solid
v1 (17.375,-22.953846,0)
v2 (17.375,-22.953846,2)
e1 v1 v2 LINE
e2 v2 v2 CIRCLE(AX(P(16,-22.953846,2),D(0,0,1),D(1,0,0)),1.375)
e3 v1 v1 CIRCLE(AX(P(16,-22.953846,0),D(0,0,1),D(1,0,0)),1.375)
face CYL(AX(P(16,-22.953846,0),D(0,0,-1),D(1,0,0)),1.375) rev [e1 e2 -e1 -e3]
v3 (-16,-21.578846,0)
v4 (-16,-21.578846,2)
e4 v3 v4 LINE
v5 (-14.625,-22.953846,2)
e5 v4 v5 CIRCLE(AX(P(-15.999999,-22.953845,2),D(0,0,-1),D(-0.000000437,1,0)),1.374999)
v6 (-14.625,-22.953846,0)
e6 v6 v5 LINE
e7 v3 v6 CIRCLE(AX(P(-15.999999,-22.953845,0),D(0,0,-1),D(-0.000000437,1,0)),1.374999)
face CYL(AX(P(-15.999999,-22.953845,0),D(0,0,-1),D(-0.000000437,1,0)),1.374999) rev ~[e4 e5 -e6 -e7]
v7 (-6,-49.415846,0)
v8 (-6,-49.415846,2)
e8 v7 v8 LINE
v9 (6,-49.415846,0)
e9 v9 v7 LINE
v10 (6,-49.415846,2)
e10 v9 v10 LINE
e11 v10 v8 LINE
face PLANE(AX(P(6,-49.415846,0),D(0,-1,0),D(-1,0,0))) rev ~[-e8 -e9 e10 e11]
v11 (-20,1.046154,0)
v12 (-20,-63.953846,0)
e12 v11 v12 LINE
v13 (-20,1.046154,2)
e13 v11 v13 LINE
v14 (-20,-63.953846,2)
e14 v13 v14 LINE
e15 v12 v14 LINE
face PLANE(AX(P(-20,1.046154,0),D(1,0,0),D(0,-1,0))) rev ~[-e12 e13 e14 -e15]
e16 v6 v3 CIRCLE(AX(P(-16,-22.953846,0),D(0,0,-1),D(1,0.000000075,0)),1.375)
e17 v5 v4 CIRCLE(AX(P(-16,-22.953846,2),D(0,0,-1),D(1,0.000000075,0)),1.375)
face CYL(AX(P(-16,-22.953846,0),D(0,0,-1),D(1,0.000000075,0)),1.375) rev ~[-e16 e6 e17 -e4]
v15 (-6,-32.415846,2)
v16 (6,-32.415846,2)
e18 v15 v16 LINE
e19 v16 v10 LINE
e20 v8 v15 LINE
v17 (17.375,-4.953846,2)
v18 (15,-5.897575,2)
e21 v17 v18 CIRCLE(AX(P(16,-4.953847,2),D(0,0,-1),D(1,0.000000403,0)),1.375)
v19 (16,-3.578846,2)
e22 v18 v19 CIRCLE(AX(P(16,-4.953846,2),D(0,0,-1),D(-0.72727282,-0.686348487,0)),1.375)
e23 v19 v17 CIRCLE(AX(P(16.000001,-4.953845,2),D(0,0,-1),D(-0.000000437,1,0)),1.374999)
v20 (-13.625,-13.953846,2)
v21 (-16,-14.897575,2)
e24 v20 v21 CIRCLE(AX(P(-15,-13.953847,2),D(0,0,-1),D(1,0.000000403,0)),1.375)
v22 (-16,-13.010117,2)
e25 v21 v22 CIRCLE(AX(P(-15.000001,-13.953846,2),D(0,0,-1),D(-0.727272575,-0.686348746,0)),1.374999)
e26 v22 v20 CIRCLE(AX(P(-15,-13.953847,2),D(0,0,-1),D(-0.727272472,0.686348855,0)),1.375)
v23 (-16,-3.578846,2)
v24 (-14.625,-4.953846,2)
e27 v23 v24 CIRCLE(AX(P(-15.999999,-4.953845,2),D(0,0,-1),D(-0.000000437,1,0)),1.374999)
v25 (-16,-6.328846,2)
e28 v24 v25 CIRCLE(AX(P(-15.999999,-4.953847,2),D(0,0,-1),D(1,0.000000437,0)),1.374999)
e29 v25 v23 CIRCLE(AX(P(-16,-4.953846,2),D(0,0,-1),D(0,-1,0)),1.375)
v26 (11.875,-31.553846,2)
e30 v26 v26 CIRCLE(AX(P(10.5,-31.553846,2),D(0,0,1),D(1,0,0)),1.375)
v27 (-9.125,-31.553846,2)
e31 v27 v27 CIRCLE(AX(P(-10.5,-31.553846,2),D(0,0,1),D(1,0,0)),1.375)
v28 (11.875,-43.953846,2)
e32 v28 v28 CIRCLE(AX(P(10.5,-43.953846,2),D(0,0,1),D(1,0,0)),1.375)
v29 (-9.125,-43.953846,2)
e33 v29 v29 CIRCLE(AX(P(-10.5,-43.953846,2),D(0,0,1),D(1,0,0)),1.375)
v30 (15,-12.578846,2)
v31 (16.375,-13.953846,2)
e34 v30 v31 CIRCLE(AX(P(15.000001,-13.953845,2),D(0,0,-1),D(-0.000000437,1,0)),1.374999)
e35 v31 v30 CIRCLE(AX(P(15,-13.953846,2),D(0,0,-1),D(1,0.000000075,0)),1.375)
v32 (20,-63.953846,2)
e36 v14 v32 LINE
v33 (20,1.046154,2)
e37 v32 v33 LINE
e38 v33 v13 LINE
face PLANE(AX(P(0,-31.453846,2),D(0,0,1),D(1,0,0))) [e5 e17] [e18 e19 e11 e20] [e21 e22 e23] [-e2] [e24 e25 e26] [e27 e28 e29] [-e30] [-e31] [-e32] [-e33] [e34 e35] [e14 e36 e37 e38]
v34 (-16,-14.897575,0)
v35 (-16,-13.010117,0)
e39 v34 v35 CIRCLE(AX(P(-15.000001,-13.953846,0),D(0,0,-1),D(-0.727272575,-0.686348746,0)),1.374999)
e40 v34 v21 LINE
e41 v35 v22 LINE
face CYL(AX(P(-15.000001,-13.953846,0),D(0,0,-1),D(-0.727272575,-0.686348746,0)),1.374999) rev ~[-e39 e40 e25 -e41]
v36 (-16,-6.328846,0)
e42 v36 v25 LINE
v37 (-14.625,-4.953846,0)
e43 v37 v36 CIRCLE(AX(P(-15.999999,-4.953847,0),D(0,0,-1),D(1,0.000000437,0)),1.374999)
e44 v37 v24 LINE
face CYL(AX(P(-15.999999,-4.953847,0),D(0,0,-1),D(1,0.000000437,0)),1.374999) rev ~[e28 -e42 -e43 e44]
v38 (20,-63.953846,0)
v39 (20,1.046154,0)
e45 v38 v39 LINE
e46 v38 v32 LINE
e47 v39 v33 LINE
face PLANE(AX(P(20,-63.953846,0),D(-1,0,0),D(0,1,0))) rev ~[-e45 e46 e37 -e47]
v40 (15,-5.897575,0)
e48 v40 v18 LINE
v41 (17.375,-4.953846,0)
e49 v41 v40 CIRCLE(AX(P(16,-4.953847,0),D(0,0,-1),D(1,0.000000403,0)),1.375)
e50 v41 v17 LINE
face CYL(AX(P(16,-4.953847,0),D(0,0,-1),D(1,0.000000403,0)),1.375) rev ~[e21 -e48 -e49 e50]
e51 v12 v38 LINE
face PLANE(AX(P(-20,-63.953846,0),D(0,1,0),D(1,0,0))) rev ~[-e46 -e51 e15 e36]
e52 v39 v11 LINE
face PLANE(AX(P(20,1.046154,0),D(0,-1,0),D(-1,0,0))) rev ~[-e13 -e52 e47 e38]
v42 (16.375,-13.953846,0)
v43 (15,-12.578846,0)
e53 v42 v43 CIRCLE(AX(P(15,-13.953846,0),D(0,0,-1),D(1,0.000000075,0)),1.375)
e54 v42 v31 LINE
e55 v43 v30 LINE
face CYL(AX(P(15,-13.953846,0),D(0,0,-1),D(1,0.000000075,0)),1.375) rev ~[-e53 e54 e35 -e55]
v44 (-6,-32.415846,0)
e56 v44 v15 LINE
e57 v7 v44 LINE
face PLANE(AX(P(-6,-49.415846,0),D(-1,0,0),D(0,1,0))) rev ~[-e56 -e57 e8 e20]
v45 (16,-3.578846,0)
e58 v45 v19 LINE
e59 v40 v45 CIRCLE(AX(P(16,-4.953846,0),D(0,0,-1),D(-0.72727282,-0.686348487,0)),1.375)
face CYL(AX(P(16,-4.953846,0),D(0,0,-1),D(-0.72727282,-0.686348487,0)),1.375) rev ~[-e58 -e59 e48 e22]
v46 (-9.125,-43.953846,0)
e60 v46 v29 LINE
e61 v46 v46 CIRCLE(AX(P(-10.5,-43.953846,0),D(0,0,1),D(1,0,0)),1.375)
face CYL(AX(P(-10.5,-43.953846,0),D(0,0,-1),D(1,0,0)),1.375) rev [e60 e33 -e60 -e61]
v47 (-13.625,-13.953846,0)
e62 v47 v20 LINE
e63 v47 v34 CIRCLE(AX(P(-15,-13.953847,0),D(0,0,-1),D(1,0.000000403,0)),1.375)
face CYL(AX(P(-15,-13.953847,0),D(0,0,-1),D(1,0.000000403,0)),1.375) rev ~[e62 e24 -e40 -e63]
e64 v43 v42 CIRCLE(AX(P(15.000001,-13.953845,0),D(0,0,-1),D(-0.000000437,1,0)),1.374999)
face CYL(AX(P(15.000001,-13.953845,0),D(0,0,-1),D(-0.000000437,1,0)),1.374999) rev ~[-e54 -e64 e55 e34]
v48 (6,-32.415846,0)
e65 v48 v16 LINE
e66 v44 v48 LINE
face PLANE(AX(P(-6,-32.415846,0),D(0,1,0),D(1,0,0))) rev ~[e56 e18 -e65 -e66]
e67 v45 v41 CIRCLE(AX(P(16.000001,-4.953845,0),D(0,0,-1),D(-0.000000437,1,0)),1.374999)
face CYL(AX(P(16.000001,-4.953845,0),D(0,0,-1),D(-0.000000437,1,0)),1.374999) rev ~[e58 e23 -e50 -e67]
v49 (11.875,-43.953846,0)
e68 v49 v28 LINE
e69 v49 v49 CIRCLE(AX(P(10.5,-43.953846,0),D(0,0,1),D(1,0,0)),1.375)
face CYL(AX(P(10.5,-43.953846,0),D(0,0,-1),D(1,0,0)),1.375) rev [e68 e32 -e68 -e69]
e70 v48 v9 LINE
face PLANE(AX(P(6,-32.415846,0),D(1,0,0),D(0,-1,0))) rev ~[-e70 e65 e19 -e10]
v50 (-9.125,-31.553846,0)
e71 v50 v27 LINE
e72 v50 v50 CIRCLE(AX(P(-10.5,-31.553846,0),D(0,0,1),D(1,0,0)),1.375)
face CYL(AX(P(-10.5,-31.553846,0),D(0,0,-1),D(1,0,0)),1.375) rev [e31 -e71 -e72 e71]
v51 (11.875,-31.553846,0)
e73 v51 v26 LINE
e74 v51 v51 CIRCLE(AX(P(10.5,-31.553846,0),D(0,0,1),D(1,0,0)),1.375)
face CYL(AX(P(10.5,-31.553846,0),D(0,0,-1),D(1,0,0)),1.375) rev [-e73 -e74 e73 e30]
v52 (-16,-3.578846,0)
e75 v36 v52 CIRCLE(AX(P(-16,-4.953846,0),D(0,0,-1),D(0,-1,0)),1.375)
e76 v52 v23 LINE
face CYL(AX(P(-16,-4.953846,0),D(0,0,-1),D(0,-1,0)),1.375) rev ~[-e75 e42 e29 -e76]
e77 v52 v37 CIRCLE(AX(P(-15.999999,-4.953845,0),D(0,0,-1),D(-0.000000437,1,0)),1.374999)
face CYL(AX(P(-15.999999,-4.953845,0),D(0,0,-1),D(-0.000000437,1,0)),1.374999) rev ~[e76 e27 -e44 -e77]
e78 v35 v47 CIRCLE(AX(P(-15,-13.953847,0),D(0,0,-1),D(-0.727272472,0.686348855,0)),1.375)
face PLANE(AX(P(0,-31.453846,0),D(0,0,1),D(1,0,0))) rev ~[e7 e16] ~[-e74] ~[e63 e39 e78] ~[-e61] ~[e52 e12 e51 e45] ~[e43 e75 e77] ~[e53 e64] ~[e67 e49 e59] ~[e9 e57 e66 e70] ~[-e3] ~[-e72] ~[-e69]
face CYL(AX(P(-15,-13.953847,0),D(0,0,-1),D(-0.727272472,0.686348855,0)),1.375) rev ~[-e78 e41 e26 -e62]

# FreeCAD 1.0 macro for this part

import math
import FreeCAD as App
import Part
import Sketcher

V = App.Vector

doc = App.newDocument("Part")
body = doc.addObject("PartDesign::Body", "Body")

sketch1 = body.newObject("Sketcher::SketchObject", "Sketch")
sketch1.AttachmentSupport = (doc.getObject("XY_Plane"), [""])
sketch1.MapMode = "FlatFace"
sketch1.addGeometry([
    Part.LineSegment(V(20, -63.953846, 0), V(20, 1.046154, 0)),
    Part.LineSegment(V(20, 1.046154, 0), V(-20, 1.046154, 0)),
    Part.LineSegment(V(-20, 1.046154, 0), V(-20, -63.953846, 0)),
    Part.LineSegment(V(-20, -63.953846, 0), V(20, -63.953846, 0)),
    Part.Circle(V(-10.5, -43.953846, 0), V(0, 0, 1), 1.375),
    Part.Circle(V(-10.5, -31.553846, 0), V(0, 0, 1), 1.375),
    Part.LineSegment(V(-6, -49.415846, 0), V(-6, -32.415846, 0)),
    Part.LineSegment(V(-6, -32.415846, 0), V(6, -32.415846, 0)),
    Part.LineSegment(V(6, -32.415846, 0), V(6, -49.415846, 0)),
    Part.LineSegment(V(6, -49.415846, 0), V(-6, -49.415846, 0)),
    Part.Circle(V(10.5, -43.953846, 0), V(0, 0, 1), 1.375),
    Part.Circle(V(10.5, -31.553846, 0), V(0, 0, 1), 1.375),
    Part.ArcOfCircle(Part.Circle(V(-15.999999, -22.953845, 0), V(0, 0, 1), 1.374999), math.radians(-0.000025), math.radians(90.000025)),
    Part.ArcOfCircle(Part.Circle(V(-16, -22.953846, 0), V(0, 0, 1), 1.375), math.radians(89.999996), math.radians(360.000004)),
    Part.ArcOfCircle(Part.Circle(V(-15, -13.953847, 0), V(0, 0, 1), 1.375), math.radians(-136.658278), math.radians(0.000023)),
    Part.ArcOfCircle(Part.Circle(V(-15.000001, -13.953846, 0), V(0, 0, 1), 1.374999), math.radians(136.658229), math.radians(223.341771)),
    Part.ArcOfCircle(Part.Circle(V(-15, -13.953847, 0), V(0, 0, 1), 1.375), math.radians(0.000034), math.radians(136.65822)),
    Part.ArcOfCircle(Part.Circle(V(-15.999999, -4.953847, 0), V(0, 0, 1), 1.374999), math.radians(-90.000025), math.radians(0.000025)),
    Part.ArcOfCircle(Part.Circle(V(-16, -4.953846, 0), V(0, 0, 1), 1.375), math.radians(90), math.radians(270)),
    Part.ArcOfCircle(Part.Circle(V(-15.999999, -4.953845, 0), V(0, 0, 1), 1.374999), math.radians(-0.000025), math.radians(90.000025)),
    Part.Circle(V(16, -22.953846, 0), V(0, 0, 1), 1.375),
    Part.ArcOfCircle(Part.Circle(V(15.000001, -13.953845, 0), V(0, 0, 1), 1.374999), math.radians(-0.000025), math.radians(90.000025)),
    Part.ArcOfCircle(Part.Circle(V(15, -13.953846, 0), V(0, 0, 1), 1.375), math.radians(89.999996), math.radians(360.000004)),
    Part.ArcOfCircle(Part.Circle(V(16, -4.953847, 0), V(0, 0, 1), 1.375), math.radians(-136.658278), math.radians(0.000023)),
    Part.ArcOfCircle(Part.Circle(V(16, -4.953846, 0), V(0, 0, 1), 1.375), math.radians(90.000002), math.radians(223.34175)),
    Part.ArcOfCircle(Part.Circle(V(16.000001, -4.953845, 0), V(0, 0, 1), 1.374999), math.radians(-0.000025), math.radians(90.000025)),
], False)
sketch1.addConstraint([
    Sketcher.Constraint("Coincident", 0, 2, 1, 1),
    Sketcher.Constraint("Coincident", 1, 2, 2, 1),
    Sketcher.Constraint("Coincident", 2, 2, 3, 1),
    Sketcher.Constraint("Coincident", 3, 2, 0, 1),
    Sketcher.Constraint("Coincident", 6, 2, 7, 1),
    Sketcher.Constraint("Coincident", 7, 2, 8, 1),
    Sketcher.Constraint("Coincident", 8, 2, 9, 1),
    Sketcher.Constraint("Coincident", 9, 2, 6, 1),
    Sketcher.Constraint("Tangent", 12, 1, 13, 2),
    Sketcher.Constraint("Coincident", 13, 1, 12, 2),
    Sketcher.Constraint("Tangent", 14, 1, 15, 2),
    Sketcher.Constraint("Tangent", 15, 1, 16, 2),
    Sketcher.Constraint("Tangent", 16, 1, 14, 2),
    Sketcher.Constraint("Tangent", 17, 1, 18, 2),
    Sketcher.Constraint("Tangent", 18, 1, 19, 2),
    Sketcher.Constraint("Tangent", 19, 1, 17, 2),
    Sketcher.Constraint("Tangent", 21, 1, 22, 2),
    Sketcher.Constraint("Coincident", 22, 1, 21, 2),
    Sketcher.Constraint("Tangent", 23, 1, 24, 2),
    Sketcher.Constraint("Tangent", 24, 1, 25, 2),
    Sketcher.Constraint("Tangent", 25, 1, 23, 2),
    Sketcher.Constraint("Vertical", 0),
    Sketcher.Constraint("Horizontal", 1),
    Sketcher.Constraint("Vertical", 2),
    Sketcher.Constraint("Horizontal", 3),
    Sketcher.Constraint("Vertical", 6),
    Sketcher.Constraint("Horizontal", 7),
    Sketcher.Constraint("Vertical", 8),
    Sketcher.Constraint("Horizontal", 9),
    Sketcher.Constraint("Equal", 4, 5),
    Sketcher.Constraint("Equal", 5, 10),
    Sketcher.Constraint("Equal", 10, 11),
    Sketcher.Constraint("Equal", 11, 12),
    Sketcher.Constraint("Equal", 13, 14),
    Sketcher.Constraint("Equal", 16, 17),
    Sketcher.Constraint("Equal", 19, 20),
    Sketcher.Constraint("Equal", 20, 21),
    Sketcher.Constraint("Equal", 22, 23),
    Sketcher.Constraint("Symmetric", 4, 3, 10, 3, -2),
    Sketcher.Constraint("Symmetric", 5, 3, 11, 3, -2),
    Sketcher.Constraint("Symmetric", 12, 3, 20, 3, -2),
    Sketcher.Constraint("Symmetric", 14, 3, 21, 3, -2),
    Sketcher.Constraint("Symmetric", 17, 3, 23, 3, -2),
    Sketcher.Constraint("Horizontal", 20, 3, 12, 1),
    Sketcher.Constraint("Horizontal", 22, 3, 16, 1),
    Sketcher.Constraint("Horizontal", 25, 3, 19, 1),
    Sketcher.Constraint("Horizontal", 16, 1, 21, 1),
    Sketcher.Constraint("Horizontal", 19, 1, 25, 1),
    Sketcher.Constraint("Vertical", 4, 3, 5, 3),
    Sketcher.Constraint("Vertical", 13, 3, 17, 3),
    Sketcher.Constraint("Vertical", 19, 3, 13, 1),
    Sketcher.Constraint("Vertical", 13, 1, 14, 1),
    Sketcher.Constraint("Vertical", 14, 1, 15, 1),
    Sketcher.Constraint("Vertical", 15, 1, 17, 1),
    Sketcher.Constraint("Vertical", 17, 1, 18, 1),
    Sketcher.Constraint("Vertical", 21, 3, 22, 1),
    Sketcher.Constraint("Vertical", 22, 1, 23, 1),
    Sketcher.Constraint("Vertical", 25, 3, 24, 1),
    Sketcher.Constraint("Diameter", 4, 2.75),
    Sketcher.Constraint("DistanceX", 1, 2, 1, 1, 40.0),
    Sketcher.Constraint("DistanceX", 7, 1, 7, 2, 12.0),
    Sketcher.Constraint("DistanceY", 0, 1, 0, 2, 65.0),
    Sketcher.Constraint("DistanceY", 6, 1, 6, 2, 17.0),
    Sketcher.Constraint("DistanceX", 12, 3, -1, 1, 15.999999),
    Sketcher.Constraint("DistanceX", 14, 3, -1, 1, 15.0),
    Sketcher.Constraint("DistanceX", -1, 1, 0, 2, 20.0),
    Sketcher.Constraint("DistanceX", 6, 2, -1, 1, 6.0),
    Sketcher.Constraint("DistanceX", 4, 3, 10, 3, 21.0),
    Sketcher.Constraint("DistanceY", 4, 3, 12, 3, 21.000001),
    Sketcher.Constraint("DistanceY", 12, 3, 14, 3, 8.999999),
    Sketcher.Constraint("DistanceY", 15, 3, 17, 3, 8.999999),
    Sketcher.Constraint("DistanceY", 25, 3, 0, 2, 5.999999),
    Sketcher.Constraint("DistanceY", 4, 3, 5, 3, 12.4),
    Sketcher.Constraint("DistanceY", 6, 2, 5, 3, 0.862),
    Sketcher.Constraint("DistanceY", 4, 3, -1, 1, 43.953846),
])
pad1 = body.newObject("PartDesign::Pad", "Pad")
pad1.Profile = sketch1
pad1.Length = 2

doc.recompute()
